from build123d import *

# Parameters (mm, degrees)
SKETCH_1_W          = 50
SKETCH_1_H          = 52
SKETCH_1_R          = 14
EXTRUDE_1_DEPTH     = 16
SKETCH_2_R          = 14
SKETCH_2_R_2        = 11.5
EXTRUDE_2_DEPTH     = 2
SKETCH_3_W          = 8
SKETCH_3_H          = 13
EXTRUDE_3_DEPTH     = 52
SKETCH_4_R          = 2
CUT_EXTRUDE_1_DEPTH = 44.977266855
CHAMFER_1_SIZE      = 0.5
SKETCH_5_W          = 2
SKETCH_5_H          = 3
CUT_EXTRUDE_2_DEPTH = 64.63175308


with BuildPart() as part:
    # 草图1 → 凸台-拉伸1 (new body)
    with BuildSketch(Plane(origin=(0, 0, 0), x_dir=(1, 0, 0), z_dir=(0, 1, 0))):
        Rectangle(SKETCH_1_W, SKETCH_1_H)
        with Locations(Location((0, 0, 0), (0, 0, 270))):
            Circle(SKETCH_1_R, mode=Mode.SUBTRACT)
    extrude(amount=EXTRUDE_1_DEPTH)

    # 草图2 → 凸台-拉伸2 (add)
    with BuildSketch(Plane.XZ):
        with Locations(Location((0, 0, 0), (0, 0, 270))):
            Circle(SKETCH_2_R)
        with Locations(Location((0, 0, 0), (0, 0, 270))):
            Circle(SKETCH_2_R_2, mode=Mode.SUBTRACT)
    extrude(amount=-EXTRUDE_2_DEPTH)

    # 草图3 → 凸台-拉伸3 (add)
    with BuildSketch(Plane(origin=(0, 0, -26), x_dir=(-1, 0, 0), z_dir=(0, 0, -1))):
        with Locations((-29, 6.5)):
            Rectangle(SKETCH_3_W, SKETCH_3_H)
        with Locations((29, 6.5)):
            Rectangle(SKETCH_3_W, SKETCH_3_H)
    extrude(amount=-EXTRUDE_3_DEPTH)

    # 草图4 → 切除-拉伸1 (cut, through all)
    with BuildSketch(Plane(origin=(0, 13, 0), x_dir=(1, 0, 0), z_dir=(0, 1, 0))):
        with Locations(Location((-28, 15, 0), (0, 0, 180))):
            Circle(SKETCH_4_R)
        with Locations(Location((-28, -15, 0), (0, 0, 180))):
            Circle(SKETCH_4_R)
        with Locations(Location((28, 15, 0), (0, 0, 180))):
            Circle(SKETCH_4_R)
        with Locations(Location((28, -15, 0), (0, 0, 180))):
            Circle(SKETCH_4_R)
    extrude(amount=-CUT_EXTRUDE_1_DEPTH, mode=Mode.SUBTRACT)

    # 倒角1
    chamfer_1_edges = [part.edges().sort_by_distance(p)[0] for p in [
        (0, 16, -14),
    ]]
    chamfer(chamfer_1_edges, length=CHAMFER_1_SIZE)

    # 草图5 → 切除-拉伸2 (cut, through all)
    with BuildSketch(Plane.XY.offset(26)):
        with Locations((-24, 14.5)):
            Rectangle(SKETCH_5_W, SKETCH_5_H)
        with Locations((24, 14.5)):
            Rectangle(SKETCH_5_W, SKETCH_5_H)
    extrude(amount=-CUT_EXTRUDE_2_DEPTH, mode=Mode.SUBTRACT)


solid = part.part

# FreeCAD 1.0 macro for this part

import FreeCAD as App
import Part
import Sketcher
from FreeCAD import Vector
Q = App.Units.Quantity


def edges_at(feature, points):
    """Names of the edges that pass closest to the given points."""
    edges = feature.Shape.Edges
    near = lambda p: min(range(len(edges)), key=lambda i: edges[i].distToShape(Part.Vertex(*p))[0])
    return sorted({f"Edge{near(p) + 1}" for p in points})


def add_polygon(sketch, points):
    """Adds a closed chain of lines whose ends are joined by coincident constraints."""
    first, n = sketch.GeometryCount, len(points)
    for a, b in zip(points, points[1:] + points[:1]):
        sketch.addGeometry(Part.LineSegment(App.Vector(*a, 0), App.Vector(*b, 0)), False)
    for i in range(n):
        sketch.addConstraint(Sketcher.Constraint("Coincident", first + i, 2, first + (i + 1) % n, 1))

doc = App.newDocument("Part")
params = doc.addObject("Spreadsheet::Sheet", "Params")
for row, (alias, value) in enumerate([
    ("sketch1_diameter", "28 mm"),
    ("sketch1_width", "50 mm"),
    ("sketch1_height", "52 mm"),
    ("pad1_length", "16 mm"),
    ("sketch2_diameter", "28 mm"),
    ("sketch2_diameter2", "23 mm"),
    ("pad2_length", "2 mm"),
    ("sketch3_width", "8 mm"),
    ("sketch3_height", "13 mm"),
    ("pad3_length", "52 mm"),
    ("sketch4_diameter", "4 mm"),
    ("chamfer_size", "0.5 mm"),
    ("sketch5_width", "2 mm"),
    ("sketch5_height", "3 mm"),
], start=1):
    params.set(f"A{row}", alias)
    params.set(f"B{row}", "=" + value)
    params.setAlias(f"B{row}", alias)

body = doc.addObject("PartDesign::Body", "Body")

sketch1 = doc.addObject("Sketcher::SketchObject", "Sketch")
body.addObject(sketch1)
sketch1.AttachmentSupport = (doc.XZ_Plane, [""])
sketch1.MapMode = "FlatFace"
add_polygon(sketch1, [(-25, -26), (-25, 26), (25, 26), (25, -26)])
sketch1.addGeometry(Part.Circle(Vector(0, 0, 0), Vector(0, 0, 1), 14), False)
sketch1.addConstraint(Sketcher.Constraint("Vertical", 0))
sketch1.addConstraint(Sketcher.Constraint("Horizontal", 1))
sketch1.addConstraint(Sketcher.Constraint("Vertical", 2))
sketch1.addConstraint(Sketcher.Constraint("Horizontal", 3))
sketch1.addConstraint(Sketcher.Constraint("Coincident", 4, 3, -1, 1))
sketch1.addConstraint(Sketcher.Constraint("Symmetric", 0, 2, 2, 2, -1, 1))
sketch1.addConstraint(Sketcher.Constraint("Diameter", 4, Q("28 mm")))
sketch1.addConstraint(Sketcher.Constraint("DistanceX", 1, 1, 1, 2, Q("50 mm")))
sketch1.addConstraint(Sketcher.Constraint("DistanceY", 0, 1, 0, 2, Q("52 mm")))
sketch1.setExpression("Constraints[10]", "Params.sketch1_diameter")
sketch1.setExpression("Constraints[11]", "Params.sketch1_width")
sketch1.setExpression("Constraints[12]", "Params.sketch1_height")
pad1 = doc.addObject("PartDesign::Pad", "Pad")
body.addObject(pad1)
pad1.Profile = sketch1
pad1.setExpression("Length", "Params.pad1_length")
pad1.Reversed = True

sketch2 = doc.addObject("Sketcher::SketchObject", "Sketch001")
body.addObject(sketch2)
sketch2.AttachmentSupport = (doc.XZ_Plane, [""])
sketch2.MapMode = "FlatFace"
sketch2.addGeometry(Part.Circle(Vector(0, 0, 0), Vector(0, 0, 1), 14), False)
sketch2.addGeometry(Part.Circle(Vector(0, 0, 0), Vector(0, 0, 1), 12), False)
sketch2.addConstraint(Sketcher.Constraint("Coincident", 0, 3, -1, 1))
sketch2.addConstraint(Sketcher.Constraint("Coincident", 1, 3, -1, 1))
sketch2.addConstraint(Sketcher.Constraint("Diameter", 0, Q("28 mm")))
sketch2.addConstraint(Sketcher.Constraint("Diameter", 1, Q("23 mm")))
sketch2.setExpression("Constraints[2]", "Params.sketch2_diameter")
sketch2.setExpression("Constraints[3]", "Params.sketch2_diameter2")
pad2 = doc.addObject("PartDesign::Pad", "Pad001")
body.addObject(pad2)
pad2.Profile = sketch2
pad2.setExpression("Length", "Params.pad2_length")
pad2.Reversed = True

sketch3 = doc.addObject("Sketcher::SketchObject", "Sketch002")
body.addObject(sketch3)
sketch3.AttachmentSupport = (doc.XY_Plane, [""])
sketch3.MapMode = "FlatFace"
sketch3.AttachmentOffset = App.Placement(Vector(0, 0, -26), App.Rotation())
add_polygon(sketch3, [(33, 13), (33, 0), (25, 0), (25, 13)])
add_polygon(sketch3, [(-25, 13), (-25, 0), (-33, 0), (-33, 13)])
sketch3.addConstraint(Sketcher.Constraint("Vertical", 0))
sketch3.addConstraint(Sketcher.Constraint("Horizontal", 1))
sketch3.addConstraint(Sketcher.Constraint("Vertical", 2))
sketch3.addConstraint(Sketcher.Constraint("Horizontal", 3))
sketch3.addConstraint(Sketcher.Constraint("Vertical", 4))
sketch3.addConstraint(Sketcher.Constraint("Horizontal", 5))
sketch3.addConstraint(Sketcher.Constraint("Vertical", 6))
sketch3.addConstraint(Sketcher.Constraint("Horizontal", 7))
sketch3.addConstraint(Sketcher.Constraint("Symmetric", 1, 2, 4, 2, -1, 1))
sketch3.addConstraint(Sketcher.Constraint("Symmetric", 0, 2, 5, 2, -2))
sketch3.addConstraint(Sketcher.Constraint("Horizontal", 3, 2, 6, 2))
sketch3.addConstraint(Sketcher.Constraint("DistanceX", 1, 2, 1, 1, Q("8 mm")))
sketch3.addConstraint(Sketcher.Constraint("DistanceY", 0, 2, 0, 1, Q("13 mm")))
sketch3.addConstraint(Sketcher.Constraint("DistanceX", -1, 1, 0, 2, Q("33 mm")))
sketch3.setExpression("Constraints[19]", "Params.sketch3_width")
sketch3.setExpression("Constraints[20]", "Params.sketch3_height")
pad3 = doc.addObject("PartDesign::Pad", "Pad002")
body.addObject(pad3)
pad3.Profile = sketch3
pad3.setExpression("Length", "Params.pad3_length")

sketch4 = doc.addObject("Sketcher::SketchObject", "Sketch003")
body.addObject(sketch4)
sketch4.AttachmentSupport = (doc.XZ_Plane, [""])
sketch4.MapMode = "FlatFace"
sketch4.AttachmentOffset = App.Placement(Vector(0, 0, -13), App.Rotation())
sketch4.addGeometry(Part.Circle(Vector(-28, -15, 0), Vector(0, 0, 1), 2), False)
sketch4.addGeometry(Part.Circle(Vector(-28, 15, 0), Vector(0, 0, 1), 2), False)
sketch4.addGeometry(Part.Circle(Vector(28, -15, 0), Vector(0, 0, 1), 2), False)
sketch4.addGeometry(Part.Circle(Vector(28, 15, 0), Vector(0, 0, 1), 2), False)
sketch4.addConstraint(Sketcher.Constraint("Equal", 0, 1))
sketch4.addConstraint(Sketcher.Constraint("Equal", 1, 2))
sketch4.addConstraint(Sketcher.Constraint("Equal", 2, 3))
sketch4.addConstraint(Sketcher.Constraint("Symmetric", 1, 3, 2, 3, -1, 1))
sketch4.addConstraint(Sketcher.Constraint("Symmetric", 0, 3, 3, 3, -1, 1))
sketch4.addConstraint(Sketcher.Constraint("Symmetric", 0, 3, 2, 3, -2))
sketch4.addConstraint(Sketcher.Constraint("Diameter", 0, Q("4 mm")))
sketch4.addConstraint(Sketcher.Constraint("DistanceX", 0, 3, -1, 1, Q("28 mm")))
sketch4.addConstraint(Sketcher.Constraint("DistanceY", 0, 3, -1, 1, Q("15 mm")))
sketch4.setExpression("Constraints[6]", "Params.sketch4_diameter")
pocket1 = doc.addObject("PartDesign::Pocket", "Pocket")
body.addObject(pocket1)
pocket1.Profile = sketch4
pocket1.Type = "ThroughAll"
pocket1.Reversed = True
doc.recompute()

chamfer = doc.addObject("PartDesign::Chamfer", "Chamfer")
body.addObject(chamfer)
chamfer.Base = (pocket1, edges_at(pocket1, [(0, 16, -14)]))
chamfer.setExpression("Size", "Params.chamfer_size")

sketch5 = doc.addObject("Sketcher::SketchObject", "Sketch004")
body.addObject(sketch5)
sketch5.AttachmentSupport = (doc.XY_Plane, [""])
sketch5.MapMode = "FlatFace"
sketch5.AttachmentOffset = App.Placement(Vector(0, 0, 26), App.Rotation())
add_polygon(sketch5, [(-25, 16), (-25, 13), (-23, 13), (-23, 16)])
add_polygon(sketch5, [(23, 16), (23, 13), (25, 13), (25, 16)])
sketch5.addConstraint(Sketcher.Constraint("Vertical", 0))
sketch5.addConstraint(Sketcher.Constraint("Horizontal", 1))
sketch5.addConstraint(Sketcher.Constraint("Vertical", 2))
sketch5.addConstraint(Sketcher.Constraint("Horizontal", 3))
sketch5.addConstraint(Sketcher.Constraint("Vertical", 4))
sketch5.addConstraint(Sketcher.Constraint("Horizontal", 5))
sketch5.addConstraint(Sketcher.Constraint("Vertical", 6))
sketch5.addConstraint(Sketcher.Constraint("Horizontal", 7))
sketch5.addConstraint(Sketcher.Constraint("Symmetric", 1, 2, 4, 2, -2))
sketch5.addConstraint(Sketcher.Constraint("Symmetric", 3, 2, 6, 2, -2))
sketch5.addConstraint(Sketcher.Constraint("DistanceX", 1, 1, 1, 2, Q("2 mm")))
sketch5.addConstraint(Sketcher.Constraint("DistanceY", 0, 2, 0, 1, Q("3 mm")))
sketch5.addConstraint(Sketcher.Constraint("DistanceX", 0, 2, -1, 1, Q("25 mm")))
sketch5.addConstraint(Sketcher.Constraint("DistanceY", -1, 1, 0, 2, Q("13 mm")))
sketch5.setExpression("Constraints[18]", "Params.sketch5_width")
sketch5.setExpression("Constraints[19]", "Params.sketch5_height")
pocket2 = doc.addObject("PartDesign::Pocket", "Pocket001")
body.addObject(pocket2)
pocket2.Profile = sketch5
pocket2.Type = "ThroughAll"

doc.recompute()
